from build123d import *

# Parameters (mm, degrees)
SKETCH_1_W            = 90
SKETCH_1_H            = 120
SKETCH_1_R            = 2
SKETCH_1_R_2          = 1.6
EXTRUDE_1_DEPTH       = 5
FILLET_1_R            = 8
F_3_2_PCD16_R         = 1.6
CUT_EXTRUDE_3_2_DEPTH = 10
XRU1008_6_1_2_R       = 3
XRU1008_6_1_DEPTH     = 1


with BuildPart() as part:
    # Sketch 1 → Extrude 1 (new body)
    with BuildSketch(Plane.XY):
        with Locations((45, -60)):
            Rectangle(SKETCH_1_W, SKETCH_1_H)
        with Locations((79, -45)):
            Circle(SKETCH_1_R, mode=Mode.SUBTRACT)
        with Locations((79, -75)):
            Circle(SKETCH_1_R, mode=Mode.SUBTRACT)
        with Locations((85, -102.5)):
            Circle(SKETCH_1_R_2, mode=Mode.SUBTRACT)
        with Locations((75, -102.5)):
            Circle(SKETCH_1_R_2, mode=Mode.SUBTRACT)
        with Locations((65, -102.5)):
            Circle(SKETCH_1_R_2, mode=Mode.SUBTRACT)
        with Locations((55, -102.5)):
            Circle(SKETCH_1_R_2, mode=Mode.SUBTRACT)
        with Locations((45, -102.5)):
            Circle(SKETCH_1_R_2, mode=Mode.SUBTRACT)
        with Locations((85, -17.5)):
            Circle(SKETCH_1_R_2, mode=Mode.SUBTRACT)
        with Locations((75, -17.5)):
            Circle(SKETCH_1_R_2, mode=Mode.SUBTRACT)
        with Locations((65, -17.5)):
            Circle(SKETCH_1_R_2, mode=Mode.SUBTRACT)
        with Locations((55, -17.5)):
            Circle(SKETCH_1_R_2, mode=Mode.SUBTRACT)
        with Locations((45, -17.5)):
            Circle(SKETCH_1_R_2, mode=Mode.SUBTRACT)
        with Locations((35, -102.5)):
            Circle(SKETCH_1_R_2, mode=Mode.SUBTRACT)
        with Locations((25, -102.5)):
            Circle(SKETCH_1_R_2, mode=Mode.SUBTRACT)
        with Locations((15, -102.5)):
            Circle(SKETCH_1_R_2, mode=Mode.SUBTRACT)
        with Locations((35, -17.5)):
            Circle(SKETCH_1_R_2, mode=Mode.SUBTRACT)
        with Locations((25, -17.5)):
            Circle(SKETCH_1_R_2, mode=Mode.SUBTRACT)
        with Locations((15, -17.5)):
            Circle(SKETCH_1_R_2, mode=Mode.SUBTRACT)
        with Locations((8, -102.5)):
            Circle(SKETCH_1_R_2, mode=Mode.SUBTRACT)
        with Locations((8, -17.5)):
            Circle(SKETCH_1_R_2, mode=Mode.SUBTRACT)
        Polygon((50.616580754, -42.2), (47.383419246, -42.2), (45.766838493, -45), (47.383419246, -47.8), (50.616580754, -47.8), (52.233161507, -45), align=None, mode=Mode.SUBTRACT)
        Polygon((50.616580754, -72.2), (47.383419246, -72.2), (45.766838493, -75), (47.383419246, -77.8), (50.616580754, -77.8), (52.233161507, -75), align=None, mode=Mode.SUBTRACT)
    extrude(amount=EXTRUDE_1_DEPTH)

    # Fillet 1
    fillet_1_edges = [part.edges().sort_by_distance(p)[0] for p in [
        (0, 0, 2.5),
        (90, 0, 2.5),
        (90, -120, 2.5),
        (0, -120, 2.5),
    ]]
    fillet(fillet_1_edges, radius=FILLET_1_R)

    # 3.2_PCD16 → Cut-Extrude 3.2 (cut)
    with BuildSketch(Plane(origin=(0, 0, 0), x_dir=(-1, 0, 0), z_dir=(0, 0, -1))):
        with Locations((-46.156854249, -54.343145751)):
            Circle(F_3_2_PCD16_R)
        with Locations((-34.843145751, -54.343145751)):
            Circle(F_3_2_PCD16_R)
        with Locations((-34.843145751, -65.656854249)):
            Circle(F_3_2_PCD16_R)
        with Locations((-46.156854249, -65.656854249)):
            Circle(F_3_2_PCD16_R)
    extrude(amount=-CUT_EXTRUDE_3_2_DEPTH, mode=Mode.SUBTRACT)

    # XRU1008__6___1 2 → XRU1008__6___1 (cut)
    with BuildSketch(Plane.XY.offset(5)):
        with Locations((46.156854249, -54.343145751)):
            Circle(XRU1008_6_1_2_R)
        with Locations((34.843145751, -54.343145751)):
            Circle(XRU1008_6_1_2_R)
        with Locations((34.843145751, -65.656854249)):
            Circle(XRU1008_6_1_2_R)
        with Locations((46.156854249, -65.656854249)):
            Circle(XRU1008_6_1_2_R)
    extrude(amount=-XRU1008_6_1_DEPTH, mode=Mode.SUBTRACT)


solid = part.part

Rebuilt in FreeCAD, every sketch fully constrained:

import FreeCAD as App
import Part
import Sketcher

V = App.Vector
Q = App.Units.Quantity


def edges_at(feature, points):
    """Names of the edges that pass closest to the given points."""
    edges = feature.Shape.Edges
    near = lambda p: min(range(len(edges)), key=lambda i: edges[i].distToShape(Part.Vertex(*p))[0])
    return sorted({f"Edge{near(p) + 1}" for p in points})


def add_polygon(sketch, points):
    """Adds a closed chain of lines whose ends are joined by coincident constraints."""
    first, n = sketch.GeometryCount, len(points)
    for a, b in zip(points, points[1:] + points[:1]):
        sketch.addGeometry(Part.LineSegment(App.Vector(*a, 0), App.Vector(*b, 0)), False)
    for i in range(n):
        sketch.addConstraint(Sketcher.Constraint("Coincident", first + i, 2, first + (i + 1) % n, 1))

doc = App.newDocument("Part")
body = doc.addObject("PartDesign::Body", "Body")

# Sketch on XY plane
sketch1 = body.newObject("Sketcher::SketchObject", "Sketch")
sketch1.AttachmentSupport = (doc.getObject("XY_Plane"), [""])
sketch1.MapMode = "FlatFace"
add_polygon(sketch1, [(0, 0), (0, -120), (90, -120), (90, 0)])  # lines 0-3
sketch1.addGeometry(Part.Circle(V(8, -102.5, 0), V(0, 0, 1), 1.6), False)  # 4
sketch1.addGeometry(Part.Circle(V(15, -102.5, 0), V(0, 0, 1), 1.6), False)  # 5
sketch1.addGeometry(Part.Circle(V(25, -102.5, 0), V(0, 0, 1), 1.6), False)  # 6
sketch1.addGeometry(Part.Circle(V(35, -102.5, 0), V(0, 0, 1), 1.6), False)  # 7
sketch1.addGeometry(Part.Circle(V(45, -102.5, 0), V(0, 0, 1), 1.6), False)  # 8
sketch1.addGeometry(Part.Circle(V(55, -102.5, 0), V(0, 0, 1), 1.6), False)  # 9
sketch1.addGeometry(Part.Circle(V(65, -102.5, 0), V(0, 0, 1), 1.6), False)  # 10
sketch1.addGeometry(Part.Circle(V(75, -102.5, 0), V(0, 0, 1), 1.6), False)  # 11
sketch1.addGeometry(Part.Circle(V(85, -102.5, 0), V(0, 0, 1), 1.6), False)  # 12
add_polygon(sketch1, [(47.383419, -72.2), (50.616581, -72.2), (52.233162, -75), (50.616581, -77.8), (47.383419, -77.8), (45.766838, -75)])  # lines 13-18
sketch1.addGeometry(Part.Circle(V(79, -75, 0), V(0, 0, 1), 2), False)  # 19
sketch1.addGeometry(Part.Circle(V(8, -17.5, 0), V(0, 0, 1), 1.6), False)  # 20
sketch1.addGeometry(Part.Circle(V(15, -17.5, 0), V(0, 0, 1), 1.6), False)  # 21
sketch1.addGeometry(Part.Circle(V(25, -17.5, 0), V(0, 0, 1), 1.6), False)  # 22
sketch1.addGeometry(Part.Circle(V(35, -17.5, 0), V(0, 0, 1), 1.6), False)  # 23
sketch1.addGeometry(Part.Circle(V(45, -17.5, 0), V(0, 0, 1), 1.6), False)  # 24
add_polygon(sketch1, [(47.383419, -42.2), (50.616581, -42.2), (52.233162, -45), (50.616581, -47.8), (47.383419, -47.8), (45.766838, -45)])  # lines 25-30
sketch1.addGeometry(Part.Circle(V(79, -45, 0), V(0, 0, 1), 2), False)  # 31
sketch1.addGeometry(Part.Circle(V(55, -17.5, 0), V(0, 0, 1), 1.6), False)  # 32
sketch1.addGeometry(Part.Circle(V(65, -17.5, 0), V(0, 0, 1), 1.6), False)  # 33
sketch1.addGeometry(Part.Circle(V(75, -17.5, 0), V(0, 0, 1), 1.6), False)  # 34
sketch1.addGeometry(Part.Circle(V(85, -17.5, 0), V(0, 0, 1), 1.6), False)  # 35
sketch1.addConstraint([
    Sketcher.Constraint("Vertical", 0),
    Sketcher.Constraint("Horizontal", 1),
    Sketcher.Constraint("Vertical", 2),
    Sketcher.Constraint("Horizontal", 3),
    Sketcher.Constraint("Horizontal", 13),
    Sketcher.Constraint("Horizontal", 16),
    Sketcher.Constraint("Horizontal", 25),
    Sketcher.Constraint("Horizontal", 28),
    Sketcher.Constraint("Coincident", 3, 2, -1, 1),
    Sketcher.Constraint("Equal", 4, 5),
    Sketcher.Constraint("Equal", 5, 6),
    Sketcher.Constraint("Equal", 6, 7),
    Sketcher.Constraint("Equal", 7, 8),
    Sketcher.Constraint("Equal", 8, 9),
    Sketcher.Constraint("Equal", 9, 10),
    Sketcher.Constraint("Equal", 10, 11),
    Sketcher.Constraint("Equal", 11, 12),
    Sketcher.Constraint("Equal", 12, 20),
    Sketcher.Constraint("Equal", 20, 21),
    Sketcher.Constraint("Equal", 21, 22),
    Sketcher.Constraint("Equal", 22, 23),
    Sketcher.Constraint("Equal", 23, 24),
    Sketcher.Constraint("Equal", 19, 31),
    Sketcher.Constraint("Equal", 24, 32),
    Sketcher.Constraint("Equal", 32, 33),
    Sketcher.Constraint("Equal", 33, 34),
    Sketcher.Constraint("Equal", 34, 35),
    Sketcher.Constraint("Parallel", 14, 17),
    Sketcher.Constraint("Parallel", 15, 18),
    Sketcher.Constraint("Parallel", 17, 26),
    Sketcher.Constraint("Parallel", 18, 27),
    Sketcher.Constraint("Parallel", 26, 29),
    Sketcher.Constraint("Parallel", 27, 30),
    Sketcher.Constraint("Horizontal", 4, 3, 5, 3),
    Sketcher.Constraint("Horizontal", 5, 3, 6, 3),
    Sketcher.Constraint("Horizontal", 6, 3, 7, 3),
    Sketcher.Constraint("Horizontal", 7, 3, 8, 3),
    Sketcher.Constraint("Horizontal", 8, 3, 9, 3),
    Sketcher.Constraint("Horizontal", 9, 3, 10, 3),
    Sketcher.Constraint("Horizontal", 10, 3, 11, 3),
    Sketcher.Constraint("Horizontal", 11, 3, 12, 3),
    Sketcher.Constraint("Horizontal", 20, 3, 21, 3),
    Sketcher.Constraint("Horizontal", 21, 3, 22, 3),
    Sketcher.Constraint("Horizontal", 22, 3, 23, 3),
    Sketcher.Constraint("Horizontal", 23, 3, 24, 3),
    Sketcher.Constraint("Horizontal", 24, 3, 32, 3),
    Sketcher.Constraint("Horizontal", 32, 3, 33, 3),
    Sketcher.Constraint("Horizontal", 33, 3, 34, 3),
    Sketcher.Constraint("Horizontal", 34, 3, 35, 3),
    Sketcher.Constraint("Horizontal", 19, 3, 14, 2),
    Sketcher.Constraint("Horizontal", 14, 2, 17, 2),
    Sketcher.Constraint("Horizontal", 31, 3, 26, 2),
    Sketcher.Constraint("Horizontal", 26, 2, 29, 2),
    Sketcher.Constraint("Vertical", 4, 3, 20, 3),
    Sketcher.Constraint("Vertical", 5, 3, 21, 3),
    Sketcher.Constraint("Vertical", 6, 3, 22, 3),
    Sketcher.Constraint("Vertical", 7, 3, 23, 3),
    Sketcher.Constraint("Vertical", 8, 3, 24, 3),
    Sketcher.Constraint("Vertical", 19, 3, 31, 3),
    Sketcher.Constraint("Vertical", 9, 3, 32, 3),
    Sketcher.Constraint("Vertical", 10, 3, 33, 3),
    Sketcher.Constraint("Vertical", 11, 3, 34, 3),
    Sketcher.Constraint("Vertical", 12, 3, 35, 3),
    Sketcher.Constraint("Vertical", 13, 2, 15, 2),
    Sketcher.Constraint("Vertical", 16, 2, 18, 2),
    Sketcher.Constraint("Vertical", 15, 2, 25, 2),
    Sketcher.Constraint("Vertical", 14, 2, 26, 2),
    Sketcher.Constraint("Vertical", 25, 2, 27, 2),
    Sketcher.Constraint("Vertical", 18, 2, 28, 2),
    Sketcher.Constraint("Diameter", 19, Q("4 mm")),
    Sketcher.Constraint("Diameter", 4, Q("3.2 mm")),
    Sketcher.Constraint("DistanceX", 1, 1, 1, 2, Q("90 mm")),
    Sketcher.Constraint("DistanceY", 0, 2, 0, 1, Q("120 mm")),
    Sketcher.Constraint("Angle", 14, Q("-60 deg")),
    Sketcher.Constraint("DistanceX", -1, 1, 4, 3, Q("8 mm")),
    Sketcher.Constraint("DistanceX", -1, 1, 5, 3, Q("15 mm")),
    Sketcher.Constraint("DistanceX", -1, 1, 6, 3, Q("25 mm")),
    Sketcher.Constraint("DistanceX", -1, 1, 7, 3, Q("35 mm")),
    Sketcher.Constraint("DistanceX", -1, 1, 8, 3, Q("45 mm")),
    Sketcher.Constraint("DistanceX", -1, 1, 9, 3, Q("55 mm")),
    Sketcher.Constraint("DistanceX", -1, 1, 10, 3, Q("65 mm")),
    Sketcher.Constraint("DistanceX", -1, 1, 11, 3, Q("75 mm")),
    Sketcher.Constraint("DistanceX", -1, 1, 12, 3, Q("85 mm")),
    Sketcher.Constraint("DistanceX", -1, 1, 19, 3, Q("79 mm")),
    Sketcher.Constraint("DistanceY", 19, 3, -1, 1, Q("75 mm")),
    Sketcher.Constraint("DistanceY", 31, 3, -1, 1, Q("45 mm")),
    Sketcher.Constraint("DistanceY", 4, 3, 20, 3, Q("85 mm")),
    Sketcher.Constraint("DistanceY", 4, 3, -1, 1, Q("102.5 mm")),
    Sketcher.Constraint("DistanceY", 13, 2, -1, 1, Q("72.2 mm")),
    Sketcher.Constraint("DistanceX", 13, 1, 13, 2, Q("3.233162 mm")),
    Sketcher.Constraint("DistanceX", -1, 1, 13, 2, Q("50.616581 mm")),
])
pad1 = body.newObject("PartDesign::Pad", "Pad")
pad1.Profile = sketch1
pad1.Length = 5
doc.recompute()

fillet = body.newObject("PartDesign::Fillet", "Fillet")
fillet.Base = (pad1, edges_at(pad1, [
    (0, 0, 2.5),
    (90, 0, 2.5),
    (90, -120, 2.5),
    (0, -120, 2.5),
]))
fillet.Radius = 8

# Sketch on XY plane
sketch2 = body.newObject("Sketcher::SketchObject", "Sketch001")
sketch2.AttachmentSupport = (doc.getObject("XY_Plane"), [""])
sketch2.MapMode = "FlatFace"
sketch2.addGeometry([
    Part.Circle(V(46.156854, -54.343146, 0), V(0, 0, 1), 1.6),
    Part.Circle(V(34.843146, -54.343146, 0), V(0, 0, 1), 1.6),
    Part.Circle(V(34.843146, -65.656854, 0), V(0, 0, 1), 1.6),
    Part.Circle(V(46.156854, -65.656854, 0), V(0, 0, 1), 1.6),
], False)
sketch2.addConstraint([
    Sketcher.Constraint("Equal", 0, 1),
    Sketcher.Constraint("Equal", 1, 2),
    Sketcher.Constraint("Equal", 2, 3),
    Sketcher.Constraint("Horizontal", 0, 3, 1, 3),
    Sketcher.Constraint("Horizontal", 2, 3, 3, 3),
    Sketcher.Constraint("Vertical", 1, 3, 2, 3),
    Sketcher.Constraint("Vertical", 0, 3, 3, 3),
    Sketcher.Constraint("Diameter", 0, Q("3.2 mm")),
    Sketcher.Constraint("DistanceX", 1, 3, 0, 3, Q("11.313708 mm")),
    Sketcher.Constraint("DistanceY", 2, 3, 1, 3, Q("11.313708 mm")),
    Sketcher.Constraint("DistanceX", -1, 1, 0, 3, Q("46.156854 mm")),
    Sketcher.Constraint("DistanceY", 0, 3, -1, 1, Q("54.343146 mm")),
])
pocket1 = body.newObject("PartDesign::Pocket", "Pocket")
pocket1.Profile = sketch2
pocket1.Length = 10
pocket1.Reversed = True

# Sketch on XY plane
sketch3 = body.newObject("Sketcher::SketchObject", "Sketch002")
sketch3.AttachmentSupport = (doc.getObject("XY_Plane"), [""])
sketch3.MapMode = "FlatFace"
sketch3.AttachmentOffset = App.Placement(V(0, 0, 5), App.Rotation())
sketch3.addGeometry([
    Part.Circle(V(46.156854, -54.343146, 0), V(0, 0, 1), 3),
    Part.Circle(V(34.843146, -54.343146, 0), V(0, 0, 1), 3),
    Part.Circle(V(34.843146, -65.656854, 0), V(0, 0, 1), 3),
    Part.Circle(V(46.156854, -65.656854, 0), V(0, 0, 1), 3),
], False)
sketch3.addConstraint([
    Sketcher.Constraint("Equal", 0, 1),
    Sketcher.Constraint("Equal", 1, 2),
    Sketcher.Constraint("Equal", 2, 3),
    Sketcher.Constraint("Horizontal", 0, 3, 1, 3),
    Sketcher.Constraint("Horizontal", 2, 3, 3, 3),
    Sketcher.Constraint("Vertical", 1, 3, 2, 3),
    Sketcher.Constraint("Vertical", 0, 3, 3, 3),
    Sketcher.Constraint("Diameter", 0, Q("6 mm")),
    Sketcher.Constraint("DistanceX", 1, 3, 0, 3, Q("11.313708 mm")),
    Sketcher.Constraint("DistanceY", 2, 3, 1, 3, Q("11.313708 mm")),
    Sketcher.Constraint("DistanceX", -1, 1, 0, 3, Q("46.156854 mm")),
    Sketcher.Constraint("DistanceY", 0, 3, -1, 1, Q("54.343146 mm")),
])
pocket2 = body.newObject("PartDesign::Pocket", "Pocket001")
pocket2.Profile = sketch3
pocket2.Length = 1

doc.recompute()
